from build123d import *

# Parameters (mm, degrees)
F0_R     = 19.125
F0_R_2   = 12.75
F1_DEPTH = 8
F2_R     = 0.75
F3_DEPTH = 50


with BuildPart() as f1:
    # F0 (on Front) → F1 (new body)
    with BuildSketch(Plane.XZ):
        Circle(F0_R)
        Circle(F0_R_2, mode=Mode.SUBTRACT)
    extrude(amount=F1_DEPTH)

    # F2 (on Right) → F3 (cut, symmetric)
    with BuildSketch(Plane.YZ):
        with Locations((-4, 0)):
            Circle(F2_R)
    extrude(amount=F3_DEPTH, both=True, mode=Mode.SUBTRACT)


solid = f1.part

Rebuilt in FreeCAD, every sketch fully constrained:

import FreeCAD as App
import Part
import Sketcher
from FreeCAD import Vector

doc = App.newDocument("Part")
body = doc.addObject("PartDesign::Body", "Body")

sketch1 = body.newObject("Sketcher::SketchObject", "Sketch")
sketch1.AttachmentSupport = (doc.getObject("XZ_Plane"), [""])
sketch1.MapMode = "FlatFace"
sketch1.addGeometry(Part.Circle(Vector(0, 0, 0), Vector(0, 0, 1), 19), False)
sketch1.addGeometry(Part.Circle(Vector(0, 0, 0), Vector(0, 0, 1), 13), False)
sketch1.addConstraint(Sketcher.Constraint("Coincident", 0, 3, -1, 1))
sketch1.addConstraint(Sketcher.Constraint("Coincident", 1, 3, -1, 1))
sketch1.addConstraint(Sketcher.Constraint("Diameter", 1, 25.5))
sketch1.addConstraint(Sketcher.Constraint("Diameter", 0, 38.25))
pad1 = body.newObject("PartDesign::Pad", "Pad")
pad1.Profile = sketch1
pad1.Length = 8

sketch2 = body.newObject("Sketcher::SketchObject", "Sketch001")
sketch2.AttachmentSupport = (doc.getObject("YZ_Plane"), [""])
sketch2.MapMode = "FlatFace"
sketch2.addGeometry(Part.Circle(Vector(-4, 0, 0), Vector(0, 0, 1), 0.8), False)
sketch2.addConstraint(Sketcher.Constraint("PointOnObject", 0, 3, -1))
sketch2.addConstraint(Sketcher.Constraint("Diameter", 0, 1.5))
sketch2.addConstraint(Sketcher.Constraint("DistanceX", 0, 3, -1, 1, 4.0))
pocket1 = body.newObject("PartDesign::Pocket", "Pocket")
pocket1.Profile = sketch2
pocket1.Length = 100
pocket1.Midplane = True

doc.recompute()
